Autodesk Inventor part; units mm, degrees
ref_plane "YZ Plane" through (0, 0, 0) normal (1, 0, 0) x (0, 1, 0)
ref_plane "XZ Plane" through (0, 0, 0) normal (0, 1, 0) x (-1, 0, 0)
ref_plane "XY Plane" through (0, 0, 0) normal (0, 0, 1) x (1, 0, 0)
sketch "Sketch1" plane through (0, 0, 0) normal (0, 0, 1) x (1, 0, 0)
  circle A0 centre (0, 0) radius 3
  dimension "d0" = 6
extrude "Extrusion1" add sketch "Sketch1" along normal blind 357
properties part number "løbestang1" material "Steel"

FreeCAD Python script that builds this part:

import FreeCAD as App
import Part
import Sketcher
Q = App.Units.Quantity

doc = App.newDocument("Part")
body = doc.addObject("PartDesign::Body", "Body")

sketch1 = body.newObject("Sketcher::SketchObject", "Sketch")
sketch1.AttachmentSupport = (doc.getObject("XY_Plane"), [""])
sketch1.MapMode = "FlatFace"
sketch1.addGeometry(Part.Circle(App.Vector(0, 0, 0), App.Vector(0, 0, 1), 3), False)
sketch1.addConstraint(Sketcher.Constraint("Coincident", 0, 3, -1, 1))
sketch1.addConstraint(Sketcher.Constraint("Diameter", 0, Q("6 mm")))
pad1 = body.newObject("PartDesign::Pad", "Pad")
pad1.Profile = sketch1
pad1.Length = 357

doc.recompute()
